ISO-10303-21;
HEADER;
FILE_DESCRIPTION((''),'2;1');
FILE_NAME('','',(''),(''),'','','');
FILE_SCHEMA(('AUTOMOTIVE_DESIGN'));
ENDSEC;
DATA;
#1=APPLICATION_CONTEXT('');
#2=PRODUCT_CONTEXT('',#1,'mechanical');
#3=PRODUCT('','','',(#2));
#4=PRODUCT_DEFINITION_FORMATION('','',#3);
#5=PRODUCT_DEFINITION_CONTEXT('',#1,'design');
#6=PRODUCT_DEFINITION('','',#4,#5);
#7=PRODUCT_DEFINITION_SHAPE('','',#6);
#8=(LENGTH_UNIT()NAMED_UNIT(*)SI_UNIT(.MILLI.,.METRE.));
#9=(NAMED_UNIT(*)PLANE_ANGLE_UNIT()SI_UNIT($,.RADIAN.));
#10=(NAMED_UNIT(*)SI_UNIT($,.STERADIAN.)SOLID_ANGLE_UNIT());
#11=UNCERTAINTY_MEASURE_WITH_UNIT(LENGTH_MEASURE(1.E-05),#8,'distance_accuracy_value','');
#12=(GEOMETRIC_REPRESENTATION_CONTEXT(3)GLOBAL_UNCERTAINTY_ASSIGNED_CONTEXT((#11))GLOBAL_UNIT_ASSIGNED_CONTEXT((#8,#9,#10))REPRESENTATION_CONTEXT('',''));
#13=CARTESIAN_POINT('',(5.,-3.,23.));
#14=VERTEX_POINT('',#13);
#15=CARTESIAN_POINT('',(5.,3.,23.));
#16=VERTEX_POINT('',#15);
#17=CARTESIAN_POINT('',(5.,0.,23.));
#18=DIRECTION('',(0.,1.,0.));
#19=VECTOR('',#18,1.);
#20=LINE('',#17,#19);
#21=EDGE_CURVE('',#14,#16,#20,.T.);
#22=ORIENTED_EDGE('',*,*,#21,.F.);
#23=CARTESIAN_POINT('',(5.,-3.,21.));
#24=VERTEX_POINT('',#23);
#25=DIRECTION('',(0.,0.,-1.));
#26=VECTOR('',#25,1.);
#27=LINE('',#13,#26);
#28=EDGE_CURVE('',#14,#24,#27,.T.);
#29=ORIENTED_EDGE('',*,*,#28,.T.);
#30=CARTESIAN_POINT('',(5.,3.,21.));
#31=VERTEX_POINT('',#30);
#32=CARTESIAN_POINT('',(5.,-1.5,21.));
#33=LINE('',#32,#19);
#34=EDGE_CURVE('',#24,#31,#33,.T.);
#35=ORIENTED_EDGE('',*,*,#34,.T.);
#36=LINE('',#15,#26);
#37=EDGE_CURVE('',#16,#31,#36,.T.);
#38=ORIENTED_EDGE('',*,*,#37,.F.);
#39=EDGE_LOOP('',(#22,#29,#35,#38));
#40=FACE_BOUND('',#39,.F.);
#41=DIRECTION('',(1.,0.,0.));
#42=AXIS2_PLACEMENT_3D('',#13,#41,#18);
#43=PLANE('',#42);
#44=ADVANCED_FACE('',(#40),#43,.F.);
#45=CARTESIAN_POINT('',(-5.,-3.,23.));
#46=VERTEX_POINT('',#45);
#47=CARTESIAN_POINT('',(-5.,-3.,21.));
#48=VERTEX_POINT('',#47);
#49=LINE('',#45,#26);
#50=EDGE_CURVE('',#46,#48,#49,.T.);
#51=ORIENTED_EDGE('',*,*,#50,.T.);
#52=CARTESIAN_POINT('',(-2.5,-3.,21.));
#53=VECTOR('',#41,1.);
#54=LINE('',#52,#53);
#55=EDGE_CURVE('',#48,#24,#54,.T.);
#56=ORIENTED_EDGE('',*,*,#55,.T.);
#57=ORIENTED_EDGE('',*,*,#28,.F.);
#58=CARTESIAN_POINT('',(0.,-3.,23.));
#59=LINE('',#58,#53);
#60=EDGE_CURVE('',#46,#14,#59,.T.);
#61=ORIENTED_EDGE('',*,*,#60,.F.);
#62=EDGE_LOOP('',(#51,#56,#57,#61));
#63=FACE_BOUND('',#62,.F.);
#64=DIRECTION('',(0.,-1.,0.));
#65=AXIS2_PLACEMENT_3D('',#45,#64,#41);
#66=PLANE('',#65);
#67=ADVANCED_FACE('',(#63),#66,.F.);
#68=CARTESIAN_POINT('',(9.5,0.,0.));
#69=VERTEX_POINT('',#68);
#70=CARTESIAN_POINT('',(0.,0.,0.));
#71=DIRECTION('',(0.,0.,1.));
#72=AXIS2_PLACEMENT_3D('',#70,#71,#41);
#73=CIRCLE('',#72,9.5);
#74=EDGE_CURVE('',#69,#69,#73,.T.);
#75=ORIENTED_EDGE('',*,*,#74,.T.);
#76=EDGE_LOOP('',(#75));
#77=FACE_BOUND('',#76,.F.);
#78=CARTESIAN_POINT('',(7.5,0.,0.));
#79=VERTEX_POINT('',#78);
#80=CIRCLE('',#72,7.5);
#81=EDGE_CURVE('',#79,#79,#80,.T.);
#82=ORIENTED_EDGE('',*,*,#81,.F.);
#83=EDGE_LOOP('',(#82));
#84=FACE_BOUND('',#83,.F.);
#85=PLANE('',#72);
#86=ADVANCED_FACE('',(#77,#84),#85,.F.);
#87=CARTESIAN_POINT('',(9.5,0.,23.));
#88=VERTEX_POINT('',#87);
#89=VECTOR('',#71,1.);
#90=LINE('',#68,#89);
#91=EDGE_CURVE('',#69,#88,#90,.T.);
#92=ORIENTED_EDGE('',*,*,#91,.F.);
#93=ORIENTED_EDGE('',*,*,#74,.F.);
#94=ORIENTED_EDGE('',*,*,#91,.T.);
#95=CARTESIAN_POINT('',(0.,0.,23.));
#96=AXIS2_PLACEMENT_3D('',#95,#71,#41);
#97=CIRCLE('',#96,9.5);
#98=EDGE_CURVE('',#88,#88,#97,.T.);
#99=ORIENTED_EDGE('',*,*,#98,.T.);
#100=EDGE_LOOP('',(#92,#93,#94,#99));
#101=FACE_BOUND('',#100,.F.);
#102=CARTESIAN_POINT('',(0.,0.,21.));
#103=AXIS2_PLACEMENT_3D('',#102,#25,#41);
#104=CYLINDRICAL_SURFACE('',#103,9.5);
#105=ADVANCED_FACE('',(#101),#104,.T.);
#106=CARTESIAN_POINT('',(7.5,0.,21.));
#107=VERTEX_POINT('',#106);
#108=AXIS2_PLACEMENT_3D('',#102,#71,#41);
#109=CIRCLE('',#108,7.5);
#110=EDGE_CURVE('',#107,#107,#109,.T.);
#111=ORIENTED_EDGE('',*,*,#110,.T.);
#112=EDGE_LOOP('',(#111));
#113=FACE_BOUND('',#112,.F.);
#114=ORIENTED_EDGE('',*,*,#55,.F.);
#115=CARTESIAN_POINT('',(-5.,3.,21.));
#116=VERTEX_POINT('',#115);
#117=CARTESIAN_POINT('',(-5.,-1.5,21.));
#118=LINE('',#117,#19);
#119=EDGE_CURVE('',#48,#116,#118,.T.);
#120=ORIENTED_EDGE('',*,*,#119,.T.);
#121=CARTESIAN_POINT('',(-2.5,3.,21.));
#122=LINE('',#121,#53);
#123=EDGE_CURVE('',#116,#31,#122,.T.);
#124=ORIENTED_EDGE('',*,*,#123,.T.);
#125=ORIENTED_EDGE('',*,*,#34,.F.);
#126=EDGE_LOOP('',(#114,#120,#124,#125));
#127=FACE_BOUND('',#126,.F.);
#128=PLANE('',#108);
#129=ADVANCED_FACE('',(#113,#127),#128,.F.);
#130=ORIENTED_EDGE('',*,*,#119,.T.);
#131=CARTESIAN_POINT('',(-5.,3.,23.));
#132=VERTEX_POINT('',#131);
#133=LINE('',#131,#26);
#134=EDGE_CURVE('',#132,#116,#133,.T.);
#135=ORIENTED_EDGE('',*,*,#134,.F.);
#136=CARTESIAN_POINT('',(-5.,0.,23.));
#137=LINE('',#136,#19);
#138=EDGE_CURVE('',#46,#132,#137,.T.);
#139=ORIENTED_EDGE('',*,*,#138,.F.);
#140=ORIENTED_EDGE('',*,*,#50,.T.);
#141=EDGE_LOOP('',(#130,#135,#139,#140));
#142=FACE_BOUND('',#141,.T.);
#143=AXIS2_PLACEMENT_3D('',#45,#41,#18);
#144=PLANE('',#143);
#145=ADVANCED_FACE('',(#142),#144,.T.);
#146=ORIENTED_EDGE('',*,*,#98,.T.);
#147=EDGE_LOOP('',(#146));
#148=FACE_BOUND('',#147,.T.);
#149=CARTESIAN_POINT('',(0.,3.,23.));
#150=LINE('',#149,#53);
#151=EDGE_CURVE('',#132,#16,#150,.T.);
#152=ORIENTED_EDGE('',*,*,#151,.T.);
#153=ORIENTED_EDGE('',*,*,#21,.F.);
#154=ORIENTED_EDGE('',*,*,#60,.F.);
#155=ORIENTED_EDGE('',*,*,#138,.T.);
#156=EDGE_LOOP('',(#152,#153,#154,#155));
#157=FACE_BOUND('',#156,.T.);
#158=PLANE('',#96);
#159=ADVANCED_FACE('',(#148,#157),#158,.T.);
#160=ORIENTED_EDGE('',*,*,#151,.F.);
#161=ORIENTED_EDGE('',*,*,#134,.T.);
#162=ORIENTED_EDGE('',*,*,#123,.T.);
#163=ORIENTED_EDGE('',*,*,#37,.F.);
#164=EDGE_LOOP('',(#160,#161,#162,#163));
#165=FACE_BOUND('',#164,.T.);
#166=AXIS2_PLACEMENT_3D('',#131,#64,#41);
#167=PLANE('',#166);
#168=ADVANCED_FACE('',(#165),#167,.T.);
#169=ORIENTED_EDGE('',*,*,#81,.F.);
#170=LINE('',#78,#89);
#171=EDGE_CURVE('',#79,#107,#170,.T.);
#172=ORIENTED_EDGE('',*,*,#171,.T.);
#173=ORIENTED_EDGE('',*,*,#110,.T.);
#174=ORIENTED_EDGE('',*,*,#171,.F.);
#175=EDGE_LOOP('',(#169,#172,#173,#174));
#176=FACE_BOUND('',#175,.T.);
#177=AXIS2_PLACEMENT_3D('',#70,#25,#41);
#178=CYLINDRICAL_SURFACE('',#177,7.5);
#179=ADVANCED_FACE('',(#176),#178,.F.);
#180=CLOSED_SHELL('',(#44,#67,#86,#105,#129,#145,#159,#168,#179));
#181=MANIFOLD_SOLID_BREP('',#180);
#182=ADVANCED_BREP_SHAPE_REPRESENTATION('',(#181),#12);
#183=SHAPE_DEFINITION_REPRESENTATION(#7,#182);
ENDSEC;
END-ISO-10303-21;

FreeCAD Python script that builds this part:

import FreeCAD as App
import Part
import Sketcher

V = App.Vector


def add_polygon(sketch, points):
    """Adds a closed chain of lines whose ends are joined by coincident constraints."""
    first, n = sketch.GeometryCount, len(points)
    for a, b in zip(points, points[1:] + points[:1]):
        sketch.addGeometry(Part.LineSegment(App.Vector(*a, 0), App.Vector(*b, 0)), False)
    for i in range(n):
        sketch.addConstraint(Sketcher.Constraint("Coincident", first + i, 2, first + (i + 1) % n, 1))

doc = App.newDocument("Part")
params = doc.addObject("Spreadsheet::Sheet", "Params")
for row, (alias, value) in enumerate([
    ("sketch1_diameter", "19 mm"),
    ("sketch1_diameter2", "15 mm"),
    ("pad1_length", "21 mm"),
    ("sketch2_diameter", "19 mm"),
    ("pad2_length", "2 mm"),
    ("sketch3_width", "10 mm"),
    ("sketch3_height", "6 mm"),
    ("pocket1_length", "5 mm"),
], start=1):
    params.set(f"A{row}", alias)
    params.set(f"B{row}", "=" + value)
    params.setAlias(f"B{row}", alias)

body = doc.addObject("PartDesign::Body", "Body")

sketch1 = doc.addObject("Sketcher::SketchObject", "Sketch")
body.addObject(sketch1)
sketch1.AttachmentSupport = (doc.XY_Plane, [""])
sketch1.MapMode = "FlatFace"
sketch1.addGeometry(Part.Circle(V(0, 0, 0), V(0, 0, 1), 10), False)
sketch1.addGeometry(Part.Circle(V(0, 0, 0), V(0, 0, 1), 8), False)
sketch1.addConstraint(Sketcher.Constraint("Coincident", 0, 3, -1, 1))
sketch1.addConstraint(Sketcher.Constraint("Coincident", 1, 3, -1, 1))
sketch1.addConstraint(Sketcher.Constraint("Diameter", 0, 19.0))
sketch1.addConstraint(Sketcher.Constraint("Diameter", 1, 15.0))
sketch1.setExpression("Constraints[2]", "Params.sketch1_diameter")
sketch1.setExpression("Constraints[3]", "Params.sketch1_diameter2")
pad1 = doc.addObject("PartDesign::Pad", "Pad")
body.addObject(pad1)
pad1.Profile = sketch1
pad1.setExpression("Length", "Params.pad1_length")

sketch2 = doc.addObject("Sketcher::SketchObject", "Sketch001")
body.addObject(sketch2)
sketch2.AttachmentSupport = (doc.XY_Plane, [""])
sketch2.MapMode = "FlatFace"
sketch2.AttachmentOffset = App.Placement(V(0, 0, 21), App.Rotation())
sketch2.addGeometry(Part.Circle(V(0, 0, 0), V(0, 0, 1), 10), False)
sketch2.addConstraint(Sketcher.Constraint("Coincident", 0, 3, -1, 1))
sketch2.addConstraint(Sketcher.Constraint("Diameter", 0, 19.0))
sketch2.setExpression("Constraints[1]", "Params.sketch2_diameter")
pad2 = doc.addObject("PartDesign::Pad", "Pad001")
body.addObject(pad2)
pad2.Profile = sketch2
pad2.setExpression("Length", "Params.pad2_length")

sketch3 = doc.addObject("Sketcher::SketchObject", "Sketch002")
body.addObject(sketch3)
sketch3.AttachmentSupport = (doc.XY_Plane, [""])
sketch3.MapMode = "FlatFace"
sketch3.AttachmentOffset = App.Placement(V(0, 0, 23), App.Rotation())
add_polygon(sketch3, [(-5, 3), (-5, -3), (5, -3), (5, 3)])
sketch3.addConstraint(Sketcher.Constraint("Vertical", 0))
sketch3.addConstraint(Sketcher.Constraint("Horizontal", 1))
sketch3.addConstraint(Sketcher.Constraint("Vertical", 2))
sketch3.addConstraint(Sketcher.Constraint("Horizontal", 3))
sketch3.addConstraint(Sketcher.Constraint("Symmetric", 0, 2, 2, 2, -1, 1))
sketch3.addConstraint(Sketcher.Constraint("DistanceX", 1, 1, 1, 2, 10.0))
sketch3.addConstraint(Sketcher.Constraint("DistanceY", 0, 2, 0, 1, 6.0))
sketch3.setExpression("Constraints[9]", "Params.sketch3_width")
sketch3.setExpression("Constraints[10]", "Params.sketch3_height")
pocket1 = doc.addObject("PartDesign::Pocket", "Pocket")
body.addObject(pocket1)
pocket1.Profile = sketch3
pocket1.setExpression("Length", "Params.pocket1_length")

doc.recompute()
